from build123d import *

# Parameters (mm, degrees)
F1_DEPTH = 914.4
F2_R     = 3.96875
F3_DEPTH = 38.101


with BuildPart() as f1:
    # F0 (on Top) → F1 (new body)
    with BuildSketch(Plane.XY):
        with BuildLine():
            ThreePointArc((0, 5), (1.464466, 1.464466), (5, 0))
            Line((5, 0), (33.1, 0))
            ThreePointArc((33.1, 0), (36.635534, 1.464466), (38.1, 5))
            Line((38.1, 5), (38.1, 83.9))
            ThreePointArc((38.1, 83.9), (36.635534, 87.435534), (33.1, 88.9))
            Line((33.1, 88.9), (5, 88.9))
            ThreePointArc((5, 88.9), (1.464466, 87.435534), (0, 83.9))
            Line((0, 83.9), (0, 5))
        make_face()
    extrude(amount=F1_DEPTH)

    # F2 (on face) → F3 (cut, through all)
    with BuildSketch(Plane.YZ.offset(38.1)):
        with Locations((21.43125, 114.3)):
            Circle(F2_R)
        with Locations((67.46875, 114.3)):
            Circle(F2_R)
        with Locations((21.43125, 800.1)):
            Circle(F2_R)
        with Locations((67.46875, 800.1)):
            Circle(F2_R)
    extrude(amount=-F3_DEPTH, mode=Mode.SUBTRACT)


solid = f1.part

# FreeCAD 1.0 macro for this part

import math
import FreeCAD as App
import Part
import Sketcher
Q = App.Units.Quantity

doc = App.newDocument("Part")
body = doc.addObject("PartDesign::Body", "Body")

sketch1 = body.newObject("Sketcher::SketchObject", "Sketch")
sketch1.AttachmentSupport = (doc.getObject("XY_Plane"), [""])
sketch1.MapMode = "FlatFace"
sketch1.addGeometry([
    Part.ArcOfCircle(Part.Circle(App.Vector(5, 5, 0), App.Vector(0, 0, 1), 5), math.radians(179.999996), math.radians(270.000004)),
    Part.LineSegment(App.Vector(5, 0, 0), App.Vector(33.1, 0, 0)),
    Part.ArcOfCircle(Part.Circle(App.Vector(33.1, 5, 0), App.Vector(0, 0, 1), 5), math.radians(-90.000004), math.radians(0.000004)),
    Part.LineSegment(App.Vector(38.1, 5, 0), App.Vector(38.1, 83.9, 0)),
    Part.ArcOfCircle(Part.Circle(App.Vector(33.1, 83.9, 0), App.Vector(0, 0, 1), 5), math.radians(-0.000004), math.radians(90.000004)),
    Part.LineSegment(App.Vector(33.1, 88.9, 0), App.Vector(5, 88.9, 0)),
    Part.ArcOfCircle(Part.Circle(App.Vector(5, 83.9, 0), App.Vector(0, 0, 1), 5), math.radians(89.999996), math.radians(180.000004)),
    Part.LineSegment(App.Vector(0, 83.9, 0), App.Vector(0, 5, 0)),
], False)
sketch1.addConstraint([
    Sketcher.Constraint("Tangent", 0, 2, 1, 1),
    Sketcher.Constraint("Tangent", 1, 2, 2, 1),
    Sketcher.Constraint("Tangent", 2, 2, 3, 1),
    Sketcher.Constraint("Tangent", 3, 2, 4, 1),
    Sketcher.Constraint("Tangent", 4, 2, 5, 1),
    Sketcher.Constraint("Tangent", 5, 2, 6, 1),
    Sketcher.Constraint("Tangent", 6, 2, 7, 1),
    Sketcher.Constraint("Tangent", 7, 2, 0, 1),
    Sketcher.Constraint("Horizontal", 1),
    Sketcher.Constraint("Vertical", 3),
    Sketcher.Constraint("Horizontal", 5),
    Sketcher.Constraint("Vertical", 7),
    Sketcher.Constraint("Equal", 0, 2),
    Sketcher.Constraint("Equal", 2, 4),
    Sketcher.Constraint("Equal", 4, 6),
    Sketcher.Constraint("PointOnObject", 0, 2, -1),
    Sketcher.Constraint("PointOnObject", 6, 2, -2),
    Sketcher.Constraint("Radius", 0, Q("5 mm")),
    Sketcher.Constraint("DistanceX", 1, 1, 1, 2, Q("28.1 mm")),
    Sketcher.Constraint("DistanceY", 3, 1, 3, 2, Q("78.9 mm")),
])
pad1 = body.newObject("PartDesign::Pad", "Pad")
pad1.Profile = sketch1
pad1.Length = 914.4

sketch2 = body.newObject("Sketcher::SketchObject", "Sketch001")
sketch2.AttachmentSupport = (doc.getObject("YZ_Plane"), [""])
sketch2.MapMode = "FlatFace"
sketch2.AttachmentOffset = App.Placement(App.Vector(0, 0, 38.1), App.Rotation())
sketch2.addGeometry([
    Part.Circle(App.Vector(21.43125, 114.3, 0), App.Vector(0, 0, 1), 3.96875),
    Part.Circle(App.Vector(67.46875, 114.3, 0), App.Vector(0, 0, 1), 3.96875),
    Part.Circle(App.Vector(21.43125, 800.1, 0), App.Vector(0, 0, 1), 3.96875),
    Part.Circle(App.Vector(67.46875, 800.1, 0), App.Vector(0, 0, 1), 3.96875),
], False)
sketch2.addConstraint([
    Sketcher.Constraint("Equal", 0, 1),
    Sketcher.Constraint("Equal", 1, 2),
    Sketcher.Constraint("Equal", 2, 3),
    Sketcher.Constraint("Horizontal", 0, 3, 1, 3),
    Sketcher.Constraint("Horizontal", 2, 3, 3, 3),
    Sketcher.Constraint("Vertical", 0, 3, 2, 3),
    Sketcher.Constraint("Vertical", 1, 3, 3, 3),
    Sketcher.Constraint("Diameter", 0, Q("7.9375 mm")),
    Sketcher.Constraint("DistanceY", -1, 1, 0, 3, Q("114.3 mm")),
    Sketcher.Constraint("DistanceY", -1, 1, 2, 3, Q("800.1 mm")),
    Sketcher.Constraint("DistanceX", 0, 3, 1, 3, Q("46.0375 mm")),
    Sketcher.Constraint("DistanceX", -1, 1, 0, 3, Q("21.43125 mm")),
])
pocket1 = body.newObject("PartDesign::Pocket", "Pocket")
pocket1.Profile = sketch2
pocket1.Type = "ThroughAll"

doc.recompute()
